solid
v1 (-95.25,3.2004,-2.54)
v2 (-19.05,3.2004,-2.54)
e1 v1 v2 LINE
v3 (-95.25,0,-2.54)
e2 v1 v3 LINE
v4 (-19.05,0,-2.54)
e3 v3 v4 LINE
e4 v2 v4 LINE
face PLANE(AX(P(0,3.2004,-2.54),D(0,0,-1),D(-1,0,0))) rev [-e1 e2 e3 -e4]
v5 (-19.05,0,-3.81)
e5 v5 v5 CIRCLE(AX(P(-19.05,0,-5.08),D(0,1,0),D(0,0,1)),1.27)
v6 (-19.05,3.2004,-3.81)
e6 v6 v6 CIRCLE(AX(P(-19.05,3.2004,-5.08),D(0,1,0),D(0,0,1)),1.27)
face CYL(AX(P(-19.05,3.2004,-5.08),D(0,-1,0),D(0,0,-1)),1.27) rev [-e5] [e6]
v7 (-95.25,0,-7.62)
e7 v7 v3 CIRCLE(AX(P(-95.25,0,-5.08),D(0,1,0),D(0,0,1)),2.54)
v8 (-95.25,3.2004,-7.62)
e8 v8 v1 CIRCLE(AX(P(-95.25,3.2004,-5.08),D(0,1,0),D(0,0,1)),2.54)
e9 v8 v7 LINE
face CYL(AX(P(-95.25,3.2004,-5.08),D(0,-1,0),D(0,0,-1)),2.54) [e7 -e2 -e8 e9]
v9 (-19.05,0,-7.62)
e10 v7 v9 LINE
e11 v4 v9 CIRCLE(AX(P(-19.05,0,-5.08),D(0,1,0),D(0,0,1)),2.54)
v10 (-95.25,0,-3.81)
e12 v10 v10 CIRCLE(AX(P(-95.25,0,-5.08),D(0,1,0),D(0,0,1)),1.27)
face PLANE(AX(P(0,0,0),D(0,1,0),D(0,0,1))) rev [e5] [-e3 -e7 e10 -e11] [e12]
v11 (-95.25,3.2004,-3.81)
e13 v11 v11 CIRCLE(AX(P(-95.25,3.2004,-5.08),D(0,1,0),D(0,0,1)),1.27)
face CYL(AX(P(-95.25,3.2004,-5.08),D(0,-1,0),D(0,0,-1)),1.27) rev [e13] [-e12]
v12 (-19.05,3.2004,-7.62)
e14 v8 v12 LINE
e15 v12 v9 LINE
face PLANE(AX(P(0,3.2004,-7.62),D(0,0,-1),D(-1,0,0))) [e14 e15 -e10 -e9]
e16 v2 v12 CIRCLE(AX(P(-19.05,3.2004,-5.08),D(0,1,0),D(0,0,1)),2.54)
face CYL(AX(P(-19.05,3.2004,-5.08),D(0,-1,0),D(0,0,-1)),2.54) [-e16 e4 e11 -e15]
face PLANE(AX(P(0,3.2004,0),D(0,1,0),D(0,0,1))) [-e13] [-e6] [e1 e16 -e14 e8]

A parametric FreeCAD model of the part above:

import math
import FreeCAD as App
import Part
import Sketcher

V = App.Vector
Q = App.Units.Quantity

doc = App.newDocument("Part")
body = doc.addObject("PartDesign::Body", "Body")

# Sketch on XZ plane
sketch1 = body.newObject("Sketcher::SketchObject", "Sketch")
sketch1.AttachmentSupport = (doc.getObject("XZ_Plane"), [""])
sketch1.MapMode = "FlatFace"
sketch1.addGeometry([
    Part.LineSegment(V(-95.2, -2.5, 0), V(-19, -2.5, 0)),  # 0
    Part.ArcOfCircle(Part.Circle(V(-19, -5.1, 0), V(0, 0, 1), 2.5), math.radians(-90), math.radians(90)),  # 1
    Part.LineSegment(V(-19, -7.6, 0), V(-95.2, -7.6, 0)),  # 2
    Part.ArcOfCircle(Part.Circle(V(-95.2, -5.1, 0), V(0, 0, 1), 2.5), math.radians(90), math.radians(270)),  # 3
    Part.Circle(V(-95.2, -5.1, 0), V(0, 0, 1), 1.3),  # 4
    Part.Circle(V(-19, -5.1, 0), V(0, 0, 1), 1.3),  # 5
], False)
sketch1.addConstraint([
    Sketcher.Constraint("Tangent", 0, 2, 1, 2),
    Sketcher.Constraint("Tangent", 1, 1, 2, 1),
    Sketcher.Constraint("Tangent", 2, 2, 3, 2),
    Sketcher.Constraint("Tangent", 3, 1, 0, 1),
    Sketcher.Constraint("Horizontal", 0),
    Sketcher.Constraint("Horizontal", 2),
    Sketcher.Constraint("Coincident", 4, 3, 3, 3),
    Sketcher.Constraint("Coincident", 5, 3, 1, 3),
    Sketcher.Constraint("Equal", 4, 5),
    Sketcher.Constraint("Diameter", 4, Q("0.1 in")),
    Sketcher.Constraint("Radius", 1, Q("0.1 in")),
    Sketcher.Constraint("DistanceX", 0, 1, 0, 2, Q("3 in")),
    Sketcher.Constraint("DistanceY", 1, 3, -1, 1, Q("0.2 in")),
    Sketcher.Constraint("DistanceX", 1, 3, -1, 1, Q("0.75 in")),
])
pad1 = body.newObject("PartDesign::Pad", "Pad")
pad1.Profile = sketch1
pad1.Length = Q("0.126 in")
pad1.Reversed = True

doc.recompute()
